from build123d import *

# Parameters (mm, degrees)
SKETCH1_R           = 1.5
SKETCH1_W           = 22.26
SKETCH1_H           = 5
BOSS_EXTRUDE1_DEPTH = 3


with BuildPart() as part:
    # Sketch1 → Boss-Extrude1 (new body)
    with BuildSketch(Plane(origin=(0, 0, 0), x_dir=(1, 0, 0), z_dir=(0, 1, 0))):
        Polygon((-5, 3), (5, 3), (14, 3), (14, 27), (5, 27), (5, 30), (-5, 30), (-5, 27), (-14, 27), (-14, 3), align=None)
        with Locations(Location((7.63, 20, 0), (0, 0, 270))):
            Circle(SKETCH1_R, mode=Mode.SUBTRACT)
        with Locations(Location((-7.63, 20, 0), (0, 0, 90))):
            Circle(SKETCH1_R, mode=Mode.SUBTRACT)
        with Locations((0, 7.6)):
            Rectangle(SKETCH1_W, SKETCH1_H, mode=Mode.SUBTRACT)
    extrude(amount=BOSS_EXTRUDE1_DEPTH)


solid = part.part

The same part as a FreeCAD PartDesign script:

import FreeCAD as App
import Part
import Sketcher

doc = App.newDocument("Part")
body = doc.addObject("PartDesign::Body", "Body")

# Sketch on XZ plane
sketch1 = body.newObject("Sketcher::SketchObject", "Sketch")
sketch1.AttachmentSupport = (doc.getObject("XZ_Plane"), [""])
sketch1.MapMode = "FlatFace"
sketch1.addGeometry(Part.LineSegment(App.Vector(14, -3, 0), App.Vector(14, -27, 0)), False)
sketch1.addGeometry(Part.LineSegment(App.Vector(14, -27, 0), App.Vector(5, -27, 0)), False)
sketch1.addGeometry(Part.LineSegment(App.Vector(5, -27, 0), App.Vector(5, -30, 0)), False)
sketch1.addGeometry(Part.LineSegment(App.Vector(5, -30, 0), App.Vector(-5, -30, 0)), False)
sketch1.addGeometry(Part.LineSegment(App.Vector(-5, -30, 0), App.Vector(-5, -27, 0)), False)
sketch1.addGeometry(Part.LineSegment(App.Vector(-5, -27, 0), App.Vector(-14, -27, 0)), False)
sketch1.addGeometry(Part.LineSegment(App.Vector(-14, -27, 0), App.Vector(-14, -3, 0)), False)
sketch1.addGeometry(Part.LineSegment(App.Vector(-14, -3, 0), App.Vector(14, -3, 0)), False)
sketch1.addGeometry(Part.LineSegment(App.Vector(11.1, -5.1, 0), App.Vector(-11.1, -5.1, 0)), False)
sketch1.addGeometry(Part.LineSegment(App.Vector(-11.1, -5.1, 0), App.Vector(-11.1, -10.1, 0)), False)
sketch1.addGeometry(Part.LineSegment(App.Vector(-11.1, -10.1, 0), App.Vector(11.1, -10.1, 0)), False)
sketch1.addGeometry(Part.LineSegment(App.Vector(11.1, -10.1, 0), App.Vector(11.1, -5.1, 0)), False)
sketch1.addGeometry(Part.Circle(App.Vector(-7.6, -20, 0), App.Vector(0, 0, 1), 1.5), False)
sketch1.addGeometry(Part.Circle(App.Vector(7.6, -20, 0), App.Vector(0, 0, 1), 1.5), False)
sketch1.addConstraint(Sketcher.Constraint("Coincident", 0, 2, 1, 1))
sketch1.addConstraint(Sketcher.Constraint("Coincident", 1, 2, 2, 1))
sketch1.addConstraint(Sketcher.Constraint("Coincident", 2, 2, 3, 1))
sketch1.addConstraint(Sketcher.Constraint("Coincident", 3, 2, 4, 1))
sketch1.addConstraint(Sketcher.Constraint("Coincident", 4, 2, 5, 1))
sketch1.addConstraint(Sketcher.Constraint("Coincident", 5, 2, 6, 1))
sketch1.addConstraint(Sketcher.Constraint("Coincident", 6, 2, 7, 1))
sketch1.addConstraint(Sketcher.Constraint("Coincident", 7, 2, 0, 1))
sketch1.addConstraint(Sketcher.Constraint("Coincident", 8, 2, 9, 1))
sketch1.addConstraint(Sketcher.Constraint("Coincident", 9, 2, 10, 1))
sketch1.addConstraint(Sketcher.Constraint("Coincident", 10, 2, 11, 1))
sketch1.addConstraint(Sketcher.Constraint("Coincident", 11, 2, 8, 1))
sketch1.addConstraint(Sketcher.Constraint("Vertical", 0))
sketch1.addConstraint(Sketcher.Constraint("Horizontal", 1))
sketch1.addConstraint(Sketcher.Constraint("Vertical", 2))
sketch1.addConstraint(Sketcher.Constraint("Horizontal", 3))
sketch1.addConstraint(Sketcher.Constraint("Vertical", 4))
sketch1.addConstraint(Sketcher.Constraint("Horizontal", 5))
sketch1.addConstraint(Sketcher.Constraint("Vertical", 6))
sketch1.addConstraint(Sketcher.Constraint("Horizontal", 7))
sketch1.addConstraint(Sketcher.Constraint("Horizontal", 8))
sketch1.addConstraint(Sketcher.Constraint("Vertical", 9))
sketch1.addConstraint(Sketcher.Constraint("Horizontal", 10))
sketch1.addConstraint(Sketcher.Constraint("Vertical", 11))
sketch1.addConstraint(Sketcher.Constraint("Equal", 12, 13))
sketch1.addConstraint(Sketcher.Constraint("Symmetric", 12, 3, 13, 3, -2))
sketch1.addConstraint(Sketcher.Constraint("Symmetric", 1, 2, 4, 2, -2))
sketch1.addConstraint(Sketcher.Constraint("Equal", 1, 5))
sketch1.addConstraint(Sketcher.Constraint("Diameter", 12, 3.0))
sketch1.addConstraint(Sketcher.Constraint("DistanceX", 1, 2, 1, 1, 9.0))
sketch1.addConstraint(Sketcher.Constraint("DistanceX", 3, 2, 3, 1, 10.0))
sketch1.addConstraint(Sketcher.Constraint("DistanceY", 0, 2, 0, 1, 24.0))
sketch1.addConstraint(Sketcher.Constraint("DistanceY", 2, 2, 2, 1, 3.0))
sketch1.addConstraint(Sketcher.Constraint("DistanceY", 9, 2, 9, 1, 5.0))
sketch1.addConstraint(Sketcher.Constraint("DistanceY", 12, 3, -1, 1, 20.0))
sketch1.addConstraint(Sketcher.Constraint("DistanceY", 0, 2, -1, 1, 27.0))
sketch1.addConstraint(Sketcher.Constraint("DistanceX", 8, 2, 8, 1, 22.26))
sketch1.addConstraint(Sketcher.Constraint("DistanceY", 8, 2, -1, 1, 5.1))
sketch1.addConstraint(Sketcher.Constraint("DistanceX", 8, 2, 12, 3, 3.5))
sketch1.addConstraint(Sketcher.Constraint("DistanceX", 13, 3, 10, 2, 3.5))
pad1 = body.newObject("PartDesign::Pad", "Pad")
pad1.Profile = sketch1
pad1.Length = 3
pad1.Reversed = True

doc.recompute()
